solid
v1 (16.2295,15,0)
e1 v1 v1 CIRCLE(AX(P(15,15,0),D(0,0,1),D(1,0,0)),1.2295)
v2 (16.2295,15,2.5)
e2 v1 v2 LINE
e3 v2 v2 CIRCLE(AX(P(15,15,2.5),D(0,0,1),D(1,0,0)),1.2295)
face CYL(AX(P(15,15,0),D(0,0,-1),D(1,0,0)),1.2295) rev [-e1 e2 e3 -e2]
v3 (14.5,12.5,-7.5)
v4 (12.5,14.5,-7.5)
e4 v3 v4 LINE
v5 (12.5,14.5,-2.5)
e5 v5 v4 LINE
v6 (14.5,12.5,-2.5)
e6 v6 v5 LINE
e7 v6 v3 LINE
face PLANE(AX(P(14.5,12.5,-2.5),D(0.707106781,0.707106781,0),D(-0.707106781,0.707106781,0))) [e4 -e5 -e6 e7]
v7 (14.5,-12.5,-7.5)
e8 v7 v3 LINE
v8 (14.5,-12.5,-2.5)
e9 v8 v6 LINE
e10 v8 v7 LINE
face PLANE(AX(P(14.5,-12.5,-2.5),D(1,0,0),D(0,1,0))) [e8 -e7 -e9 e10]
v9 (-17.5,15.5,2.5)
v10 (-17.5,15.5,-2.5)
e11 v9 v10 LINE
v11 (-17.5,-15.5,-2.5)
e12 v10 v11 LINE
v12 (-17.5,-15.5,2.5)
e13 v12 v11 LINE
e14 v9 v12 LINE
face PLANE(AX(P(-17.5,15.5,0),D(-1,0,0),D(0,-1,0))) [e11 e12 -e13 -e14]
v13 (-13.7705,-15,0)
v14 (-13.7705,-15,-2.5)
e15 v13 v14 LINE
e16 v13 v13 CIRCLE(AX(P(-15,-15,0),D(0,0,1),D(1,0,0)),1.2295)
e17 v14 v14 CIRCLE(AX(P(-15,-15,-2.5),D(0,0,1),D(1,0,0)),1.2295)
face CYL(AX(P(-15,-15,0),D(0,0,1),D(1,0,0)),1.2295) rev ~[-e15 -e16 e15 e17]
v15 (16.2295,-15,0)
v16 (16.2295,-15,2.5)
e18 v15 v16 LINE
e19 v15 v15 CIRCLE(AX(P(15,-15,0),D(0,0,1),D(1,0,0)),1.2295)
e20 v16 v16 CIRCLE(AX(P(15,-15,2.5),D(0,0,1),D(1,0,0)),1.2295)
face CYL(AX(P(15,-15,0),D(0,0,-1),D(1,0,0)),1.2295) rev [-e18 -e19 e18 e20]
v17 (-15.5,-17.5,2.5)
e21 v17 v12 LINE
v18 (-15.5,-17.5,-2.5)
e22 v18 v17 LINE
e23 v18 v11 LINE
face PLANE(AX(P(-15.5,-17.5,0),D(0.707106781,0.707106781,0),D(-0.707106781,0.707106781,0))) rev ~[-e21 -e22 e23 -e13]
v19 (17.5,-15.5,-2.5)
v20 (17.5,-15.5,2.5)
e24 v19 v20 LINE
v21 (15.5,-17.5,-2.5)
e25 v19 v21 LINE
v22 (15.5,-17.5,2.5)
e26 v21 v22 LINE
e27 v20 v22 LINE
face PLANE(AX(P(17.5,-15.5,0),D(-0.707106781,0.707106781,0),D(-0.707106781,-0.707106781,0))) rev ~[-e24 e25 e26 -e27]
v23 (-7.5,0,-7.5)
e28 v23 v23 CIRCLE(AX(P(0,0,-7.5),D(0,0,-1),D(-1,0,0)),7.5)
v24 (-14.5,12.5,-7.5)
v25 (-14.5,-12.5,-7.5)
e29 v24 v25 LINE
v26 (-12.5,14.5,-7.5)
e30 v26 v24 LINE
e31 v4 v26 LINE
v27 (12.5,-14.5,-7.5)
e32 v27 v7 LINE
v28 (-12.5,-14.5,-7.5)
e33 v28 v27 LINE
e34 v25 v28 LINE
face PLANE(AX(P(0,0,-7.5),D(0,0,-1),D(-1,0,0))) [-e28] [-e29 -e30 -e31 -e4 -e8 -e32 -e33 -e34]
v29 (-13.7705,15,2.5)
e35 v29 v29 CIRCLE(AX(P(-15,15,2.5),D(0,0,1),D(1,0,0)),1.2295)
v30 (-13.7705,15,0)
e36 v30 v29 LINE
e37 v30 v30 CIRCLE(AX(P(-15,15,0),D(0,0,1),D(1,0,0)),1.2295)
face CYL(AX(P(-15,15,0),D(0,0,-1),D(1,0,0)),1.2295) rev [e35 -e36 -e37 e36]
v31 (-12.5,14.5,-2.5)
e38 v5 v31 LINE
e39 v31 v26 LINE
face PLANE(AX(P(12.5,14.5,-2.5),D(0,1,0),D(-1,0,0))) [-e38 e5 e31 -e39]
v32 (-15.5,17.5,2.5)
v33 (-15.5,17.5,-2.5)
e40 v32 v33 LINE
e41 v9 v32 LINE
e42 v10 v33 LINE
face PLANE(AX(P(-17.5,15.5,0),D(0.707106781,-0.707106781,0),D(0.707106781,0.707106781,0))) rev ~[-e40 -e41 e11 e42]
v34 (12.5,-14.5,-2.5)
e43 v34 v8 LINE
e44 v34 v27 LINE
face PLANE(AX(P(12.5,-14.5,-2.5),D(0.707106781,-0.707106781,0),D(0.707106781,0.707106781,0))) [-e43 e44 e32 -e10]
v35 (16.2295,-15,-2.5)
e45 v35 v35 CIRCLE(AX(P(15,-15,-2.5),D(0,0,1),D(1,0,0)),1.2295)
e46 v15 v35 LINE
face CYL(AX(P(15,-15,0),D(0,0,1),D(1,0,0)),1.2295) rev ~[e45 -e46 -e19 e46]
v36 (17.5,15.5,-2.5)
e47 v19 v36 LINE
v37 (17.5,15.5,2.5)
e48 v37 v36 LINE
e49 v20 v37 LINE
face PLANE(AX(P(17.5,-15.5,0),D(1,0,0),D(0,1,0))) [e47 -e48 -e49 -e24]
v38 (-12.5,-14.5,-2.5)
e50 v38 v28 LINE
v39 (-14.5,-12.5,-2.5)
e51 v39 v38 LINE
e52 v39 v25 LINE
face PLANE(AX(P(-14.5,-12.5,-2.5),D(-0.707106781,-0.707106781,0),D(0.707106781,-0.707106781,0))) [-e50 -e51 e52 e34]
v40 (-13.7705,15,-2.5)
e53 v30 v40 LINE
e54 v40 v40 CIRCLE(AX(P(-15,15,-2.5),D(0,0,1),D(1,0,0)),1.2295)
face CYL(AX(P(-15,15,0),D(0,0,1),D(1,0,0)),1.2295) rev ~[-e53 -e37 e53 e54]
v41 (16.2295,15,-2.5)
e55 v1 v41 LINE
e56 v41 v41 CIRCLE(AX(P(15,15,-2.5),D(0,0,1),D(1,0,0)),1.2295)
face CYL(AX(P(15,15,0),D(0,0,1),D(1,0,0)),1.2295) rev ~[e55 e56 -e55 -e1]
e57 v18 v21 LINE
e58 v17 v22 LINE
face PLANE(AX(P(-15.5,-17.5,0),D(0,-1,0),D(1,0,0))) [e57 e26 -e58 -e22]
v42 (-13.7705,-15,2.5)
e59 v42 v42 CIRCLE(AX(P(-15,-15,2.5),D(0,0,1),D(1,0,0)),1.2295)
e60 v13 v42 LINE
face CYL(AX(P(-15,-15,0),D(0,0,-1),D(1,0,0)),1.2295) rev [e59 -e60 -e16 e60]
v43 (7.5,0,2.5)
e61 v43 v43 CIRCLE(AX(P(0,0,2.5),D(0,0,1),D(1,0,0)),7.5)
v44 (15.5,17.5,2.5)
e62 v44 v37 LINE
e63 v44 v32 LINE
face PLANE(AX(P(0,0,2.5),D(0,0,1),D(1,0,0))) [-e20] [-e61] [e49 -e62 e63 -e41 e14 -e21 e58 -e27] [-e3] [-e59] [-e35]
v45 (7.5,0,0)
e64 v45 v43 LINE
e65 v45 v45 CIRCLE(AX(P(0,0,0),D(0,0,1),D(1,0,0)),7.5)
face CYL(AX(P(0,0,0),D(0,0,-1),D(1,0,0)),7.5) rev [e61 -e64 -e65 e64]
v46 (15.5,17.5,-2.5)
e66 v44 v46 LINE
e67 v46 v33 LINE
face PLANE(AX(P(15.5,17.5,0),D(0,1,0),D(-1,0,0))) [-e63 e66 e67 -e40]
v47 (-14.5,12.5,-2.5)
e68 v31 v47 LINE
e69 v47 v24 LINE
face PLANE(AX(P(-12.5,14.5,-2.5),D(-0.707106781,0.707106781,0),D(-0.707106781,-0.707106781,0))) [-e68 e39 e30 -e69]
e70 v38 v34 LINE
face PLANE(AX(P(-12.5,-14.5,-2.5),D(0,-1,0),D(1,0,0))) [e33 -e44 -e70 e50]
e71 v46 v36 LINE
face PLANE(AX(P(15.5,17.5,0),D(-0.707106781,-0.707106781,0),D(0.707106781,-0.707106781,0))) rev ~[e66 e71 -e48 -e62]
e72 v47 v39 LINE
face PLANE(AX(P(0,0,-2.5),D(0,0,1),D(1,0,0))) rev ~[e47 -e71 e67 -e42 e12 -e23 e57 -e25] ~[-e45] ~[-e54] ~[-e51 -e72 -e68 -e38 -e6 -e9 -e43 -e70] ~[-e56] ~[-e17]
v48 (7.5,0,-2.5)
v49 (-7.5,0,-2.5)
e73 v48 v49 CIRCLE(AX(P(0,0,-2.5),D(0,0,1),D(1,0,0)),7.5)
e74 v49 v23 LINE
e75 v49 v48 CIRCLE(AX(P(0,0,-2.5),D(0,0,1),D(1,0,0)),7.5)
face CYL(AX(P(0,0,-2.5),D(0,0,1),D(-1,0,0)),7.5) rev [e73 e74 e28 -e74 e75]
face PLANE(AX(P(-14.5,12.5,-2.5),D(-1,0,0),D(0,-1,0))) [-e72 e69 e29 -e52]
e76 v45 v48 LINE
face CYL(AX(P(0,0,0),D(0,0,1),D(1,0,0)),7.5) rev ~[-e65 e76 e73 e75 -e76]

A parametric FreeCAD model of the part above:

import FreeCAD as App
import Part
import Sketcher

V = App.Vector


def add_polygon(sketch, points):
    """Adds a closed chain of lines whose ends are joined by coincident constraints."""
    first, n = sketch.GeometryCount, len(points)
    for a, b in zip(points, points[1:] + points[:1]):
        sketch.addGeometry(Part.LineSegment(App.Vector(*a, 0), App.Vector(*b, 0)), False)
    for i in range(n):
        sketch.addConstraint(Sketcher.Constraint("Coincident", first + i, 2, first + (i + 1) % n, 1))

doc = App.newDocument("Part")
body = doc.addObject("PartDesign::Body", "Body")

# Sketch on XY plane
sketch1 = doc.addObject("Sketcher::SketchObject", "Sketch")
body.addObject(sketch1)
sketch1.AttachmentSupport = (doc.XY_Plane, [""])
sketch1.MapMode = "FlatFace"
add_polygon(sketch1, [(-17.5, -15.5), (-15.5, -17.5), (15.5, -17.5), (17.5, -15.5), (17.5, 15.5), (15.5, 17.5), (-15.5, 17.5), (-17.5, 15.5)])  # lines 0-7
sketch1.addGeometry(Part.Circle(V(-15, -15, 0), V(0, 0, 1), 1.2295), False)  # 8
sketch1.addGeometry(Part.Circle(V(15, -15, 0), V(0, 0, 1), 1.2295), False)  # 9
sketch1.addGeometry(Part.Circle(V(-15, 15, 0), V(0, 0, 1), 1.2295), False)  # 10
sketch1.addGeometry(Part.Circle(V(0, 0, 0), V(0, 0, 1), 7.5), False)  # 11
sketch1.addGeometry(Part.Circle(V(15, 15, 0), V(0, 0, 1), 1.2295), False)  # 12
sketch1.addConstraint([
    Sketcher.Constraint("Horizontal", 1),
    Sketcher.Constraint("Vertical", 3),
    Sketcher.Constraint("Horizontal", 5),
    Sketcher.Constraint("Vertical", 7),
    Sketcher.Constraint("Coincident", 11, 3, -1, 1),
    Sketcher.Constraint("Equal", 8, 9),
    Sketcher.Constraint("Equal", 9, 10),
    Sketcher.Constraint("Equal", 10, 12),
    Sketcher.Constraint("Symmetric", 9, 3, 10, 3, -1, 1),
    Sketcher.Constraint("Symmetric", 8, 3, 12, 3, -1, 1),
    Sketcher.Constraint("Symmetric", 0, 2, 4, 2, -1, 1),
    Sketcher.Constraint("Symmetric", 2, 2, 6, 2, -1, 1),
    Sketcher.Constraint("Symmetric", 8, 3, 9, 3, -2),
    Sketcher.Constraint("Perpendicular", 0, 2),
    Sketcher.Constraint("Perpendicular", 2, 4),
    Sketcher.Constraint("Perpendicular", 4, 6),
    Sketcher.Constraint("Horizontal", 3, 2, 6, 2),
    Sketcher.Constraint("Vertical", 1, 2, 4, 2),
    Sketcher.Constraint("Equal", 5, 3),
    Sketcher.Constraint("Diameter", 11, 15.0),
    Sketcher.Constraint("DistanceX", 8, 3, -1, 1, 15.0),
    Sketcher.Constraint("DistanceY", 8, 3, -1, 1, 15.0),
    Sketcher.Constraint("DistanceX", 1, 1, 1, 2, 31.0),
    Sketcher.Constraint("Diameter", 8, 2.459),
    Sketcher.Constraint("DistanceX", 1, 2, 2, 2, 2.0),
])
pad1 = doc.addObject("PartDesign::Pad", "Pad")
body.addObject(pad1)
pad1.Profile = sketch1
pad1.Length = 5
pad1.Midplane = True

# Sketch on XY plane
sketch2 = doc.addObject("Sketcher::SketchObject", "Sketch001")
body.addObject(sketch2)
sketch2.AttachmentSupport = (doc.XY_Plane, [""])
sketch2.MapMode = "FlatFace"
sketch2.AttachmentOffset = App.Placement(V(0, 0, -2.5), App.Rotation())
add_polygon(sketch2, [(-14.5, -12.5), (-14.5, 12.5), (-12.5, 14.5), (12.5, 14.5), (14.5, 12.5), (14.5, -12.5), (12.5, -14.5), (-12.5, -14.5)])  # lines 0-7
sketch2.addGeometry(Part.Circle(V(0, 0, 0), V(0, 0, 1), 7.5), False)  # 8
sketch2.addConstraint([
    Sketcher.Constraint("Vertical", 0),
    Sketcher.Constraint("Horizontal", 2),
    Sketcher.Constraint("Vertical", 4),
    Sketcher.Constraint("Horizontal", 6),
    Sketcher.Constraint("Coincident", 8, 3, -1, 1),
    Sketcher.Constraint("Symmetric", 0, 2, 4, 2, -1, 1),
    Sketcher.Constraint("Symmetric", 1, 2, 5, 2, -1, 1),
    Sketcher.Constraint("Perpendicular", 1, 3),
    Sketcher.Constraint("Perpendicular", 5, 7),
    Sketcher.Constraint("Horizontal", 0, 2, 3, 2),
    Sketcher.Constraint("Horizontal", 4, 2, 7, 2),
    Sketcher.Constraint("Vertical", 2, 2, 5, 2),
    Sketcher.Constraint("Equal", 6, 0),
    Sketcher.Constraint("Diameter", 8, 15.0),
    Sketcher.Constraint("DistanceX", 2, 1, 2, 2, 25.0),
    Sketcher.Constraint("DistanceX", 0, 2, 1, 2, 2.0),
])
pad2 = doc.addObject("PartDesign::Pad", "Pad001")
body.addObject(pad2)
pad2.Profile = sketch2
pad2.Length = 5
pad2.Reversed = True

doc.recompute()
